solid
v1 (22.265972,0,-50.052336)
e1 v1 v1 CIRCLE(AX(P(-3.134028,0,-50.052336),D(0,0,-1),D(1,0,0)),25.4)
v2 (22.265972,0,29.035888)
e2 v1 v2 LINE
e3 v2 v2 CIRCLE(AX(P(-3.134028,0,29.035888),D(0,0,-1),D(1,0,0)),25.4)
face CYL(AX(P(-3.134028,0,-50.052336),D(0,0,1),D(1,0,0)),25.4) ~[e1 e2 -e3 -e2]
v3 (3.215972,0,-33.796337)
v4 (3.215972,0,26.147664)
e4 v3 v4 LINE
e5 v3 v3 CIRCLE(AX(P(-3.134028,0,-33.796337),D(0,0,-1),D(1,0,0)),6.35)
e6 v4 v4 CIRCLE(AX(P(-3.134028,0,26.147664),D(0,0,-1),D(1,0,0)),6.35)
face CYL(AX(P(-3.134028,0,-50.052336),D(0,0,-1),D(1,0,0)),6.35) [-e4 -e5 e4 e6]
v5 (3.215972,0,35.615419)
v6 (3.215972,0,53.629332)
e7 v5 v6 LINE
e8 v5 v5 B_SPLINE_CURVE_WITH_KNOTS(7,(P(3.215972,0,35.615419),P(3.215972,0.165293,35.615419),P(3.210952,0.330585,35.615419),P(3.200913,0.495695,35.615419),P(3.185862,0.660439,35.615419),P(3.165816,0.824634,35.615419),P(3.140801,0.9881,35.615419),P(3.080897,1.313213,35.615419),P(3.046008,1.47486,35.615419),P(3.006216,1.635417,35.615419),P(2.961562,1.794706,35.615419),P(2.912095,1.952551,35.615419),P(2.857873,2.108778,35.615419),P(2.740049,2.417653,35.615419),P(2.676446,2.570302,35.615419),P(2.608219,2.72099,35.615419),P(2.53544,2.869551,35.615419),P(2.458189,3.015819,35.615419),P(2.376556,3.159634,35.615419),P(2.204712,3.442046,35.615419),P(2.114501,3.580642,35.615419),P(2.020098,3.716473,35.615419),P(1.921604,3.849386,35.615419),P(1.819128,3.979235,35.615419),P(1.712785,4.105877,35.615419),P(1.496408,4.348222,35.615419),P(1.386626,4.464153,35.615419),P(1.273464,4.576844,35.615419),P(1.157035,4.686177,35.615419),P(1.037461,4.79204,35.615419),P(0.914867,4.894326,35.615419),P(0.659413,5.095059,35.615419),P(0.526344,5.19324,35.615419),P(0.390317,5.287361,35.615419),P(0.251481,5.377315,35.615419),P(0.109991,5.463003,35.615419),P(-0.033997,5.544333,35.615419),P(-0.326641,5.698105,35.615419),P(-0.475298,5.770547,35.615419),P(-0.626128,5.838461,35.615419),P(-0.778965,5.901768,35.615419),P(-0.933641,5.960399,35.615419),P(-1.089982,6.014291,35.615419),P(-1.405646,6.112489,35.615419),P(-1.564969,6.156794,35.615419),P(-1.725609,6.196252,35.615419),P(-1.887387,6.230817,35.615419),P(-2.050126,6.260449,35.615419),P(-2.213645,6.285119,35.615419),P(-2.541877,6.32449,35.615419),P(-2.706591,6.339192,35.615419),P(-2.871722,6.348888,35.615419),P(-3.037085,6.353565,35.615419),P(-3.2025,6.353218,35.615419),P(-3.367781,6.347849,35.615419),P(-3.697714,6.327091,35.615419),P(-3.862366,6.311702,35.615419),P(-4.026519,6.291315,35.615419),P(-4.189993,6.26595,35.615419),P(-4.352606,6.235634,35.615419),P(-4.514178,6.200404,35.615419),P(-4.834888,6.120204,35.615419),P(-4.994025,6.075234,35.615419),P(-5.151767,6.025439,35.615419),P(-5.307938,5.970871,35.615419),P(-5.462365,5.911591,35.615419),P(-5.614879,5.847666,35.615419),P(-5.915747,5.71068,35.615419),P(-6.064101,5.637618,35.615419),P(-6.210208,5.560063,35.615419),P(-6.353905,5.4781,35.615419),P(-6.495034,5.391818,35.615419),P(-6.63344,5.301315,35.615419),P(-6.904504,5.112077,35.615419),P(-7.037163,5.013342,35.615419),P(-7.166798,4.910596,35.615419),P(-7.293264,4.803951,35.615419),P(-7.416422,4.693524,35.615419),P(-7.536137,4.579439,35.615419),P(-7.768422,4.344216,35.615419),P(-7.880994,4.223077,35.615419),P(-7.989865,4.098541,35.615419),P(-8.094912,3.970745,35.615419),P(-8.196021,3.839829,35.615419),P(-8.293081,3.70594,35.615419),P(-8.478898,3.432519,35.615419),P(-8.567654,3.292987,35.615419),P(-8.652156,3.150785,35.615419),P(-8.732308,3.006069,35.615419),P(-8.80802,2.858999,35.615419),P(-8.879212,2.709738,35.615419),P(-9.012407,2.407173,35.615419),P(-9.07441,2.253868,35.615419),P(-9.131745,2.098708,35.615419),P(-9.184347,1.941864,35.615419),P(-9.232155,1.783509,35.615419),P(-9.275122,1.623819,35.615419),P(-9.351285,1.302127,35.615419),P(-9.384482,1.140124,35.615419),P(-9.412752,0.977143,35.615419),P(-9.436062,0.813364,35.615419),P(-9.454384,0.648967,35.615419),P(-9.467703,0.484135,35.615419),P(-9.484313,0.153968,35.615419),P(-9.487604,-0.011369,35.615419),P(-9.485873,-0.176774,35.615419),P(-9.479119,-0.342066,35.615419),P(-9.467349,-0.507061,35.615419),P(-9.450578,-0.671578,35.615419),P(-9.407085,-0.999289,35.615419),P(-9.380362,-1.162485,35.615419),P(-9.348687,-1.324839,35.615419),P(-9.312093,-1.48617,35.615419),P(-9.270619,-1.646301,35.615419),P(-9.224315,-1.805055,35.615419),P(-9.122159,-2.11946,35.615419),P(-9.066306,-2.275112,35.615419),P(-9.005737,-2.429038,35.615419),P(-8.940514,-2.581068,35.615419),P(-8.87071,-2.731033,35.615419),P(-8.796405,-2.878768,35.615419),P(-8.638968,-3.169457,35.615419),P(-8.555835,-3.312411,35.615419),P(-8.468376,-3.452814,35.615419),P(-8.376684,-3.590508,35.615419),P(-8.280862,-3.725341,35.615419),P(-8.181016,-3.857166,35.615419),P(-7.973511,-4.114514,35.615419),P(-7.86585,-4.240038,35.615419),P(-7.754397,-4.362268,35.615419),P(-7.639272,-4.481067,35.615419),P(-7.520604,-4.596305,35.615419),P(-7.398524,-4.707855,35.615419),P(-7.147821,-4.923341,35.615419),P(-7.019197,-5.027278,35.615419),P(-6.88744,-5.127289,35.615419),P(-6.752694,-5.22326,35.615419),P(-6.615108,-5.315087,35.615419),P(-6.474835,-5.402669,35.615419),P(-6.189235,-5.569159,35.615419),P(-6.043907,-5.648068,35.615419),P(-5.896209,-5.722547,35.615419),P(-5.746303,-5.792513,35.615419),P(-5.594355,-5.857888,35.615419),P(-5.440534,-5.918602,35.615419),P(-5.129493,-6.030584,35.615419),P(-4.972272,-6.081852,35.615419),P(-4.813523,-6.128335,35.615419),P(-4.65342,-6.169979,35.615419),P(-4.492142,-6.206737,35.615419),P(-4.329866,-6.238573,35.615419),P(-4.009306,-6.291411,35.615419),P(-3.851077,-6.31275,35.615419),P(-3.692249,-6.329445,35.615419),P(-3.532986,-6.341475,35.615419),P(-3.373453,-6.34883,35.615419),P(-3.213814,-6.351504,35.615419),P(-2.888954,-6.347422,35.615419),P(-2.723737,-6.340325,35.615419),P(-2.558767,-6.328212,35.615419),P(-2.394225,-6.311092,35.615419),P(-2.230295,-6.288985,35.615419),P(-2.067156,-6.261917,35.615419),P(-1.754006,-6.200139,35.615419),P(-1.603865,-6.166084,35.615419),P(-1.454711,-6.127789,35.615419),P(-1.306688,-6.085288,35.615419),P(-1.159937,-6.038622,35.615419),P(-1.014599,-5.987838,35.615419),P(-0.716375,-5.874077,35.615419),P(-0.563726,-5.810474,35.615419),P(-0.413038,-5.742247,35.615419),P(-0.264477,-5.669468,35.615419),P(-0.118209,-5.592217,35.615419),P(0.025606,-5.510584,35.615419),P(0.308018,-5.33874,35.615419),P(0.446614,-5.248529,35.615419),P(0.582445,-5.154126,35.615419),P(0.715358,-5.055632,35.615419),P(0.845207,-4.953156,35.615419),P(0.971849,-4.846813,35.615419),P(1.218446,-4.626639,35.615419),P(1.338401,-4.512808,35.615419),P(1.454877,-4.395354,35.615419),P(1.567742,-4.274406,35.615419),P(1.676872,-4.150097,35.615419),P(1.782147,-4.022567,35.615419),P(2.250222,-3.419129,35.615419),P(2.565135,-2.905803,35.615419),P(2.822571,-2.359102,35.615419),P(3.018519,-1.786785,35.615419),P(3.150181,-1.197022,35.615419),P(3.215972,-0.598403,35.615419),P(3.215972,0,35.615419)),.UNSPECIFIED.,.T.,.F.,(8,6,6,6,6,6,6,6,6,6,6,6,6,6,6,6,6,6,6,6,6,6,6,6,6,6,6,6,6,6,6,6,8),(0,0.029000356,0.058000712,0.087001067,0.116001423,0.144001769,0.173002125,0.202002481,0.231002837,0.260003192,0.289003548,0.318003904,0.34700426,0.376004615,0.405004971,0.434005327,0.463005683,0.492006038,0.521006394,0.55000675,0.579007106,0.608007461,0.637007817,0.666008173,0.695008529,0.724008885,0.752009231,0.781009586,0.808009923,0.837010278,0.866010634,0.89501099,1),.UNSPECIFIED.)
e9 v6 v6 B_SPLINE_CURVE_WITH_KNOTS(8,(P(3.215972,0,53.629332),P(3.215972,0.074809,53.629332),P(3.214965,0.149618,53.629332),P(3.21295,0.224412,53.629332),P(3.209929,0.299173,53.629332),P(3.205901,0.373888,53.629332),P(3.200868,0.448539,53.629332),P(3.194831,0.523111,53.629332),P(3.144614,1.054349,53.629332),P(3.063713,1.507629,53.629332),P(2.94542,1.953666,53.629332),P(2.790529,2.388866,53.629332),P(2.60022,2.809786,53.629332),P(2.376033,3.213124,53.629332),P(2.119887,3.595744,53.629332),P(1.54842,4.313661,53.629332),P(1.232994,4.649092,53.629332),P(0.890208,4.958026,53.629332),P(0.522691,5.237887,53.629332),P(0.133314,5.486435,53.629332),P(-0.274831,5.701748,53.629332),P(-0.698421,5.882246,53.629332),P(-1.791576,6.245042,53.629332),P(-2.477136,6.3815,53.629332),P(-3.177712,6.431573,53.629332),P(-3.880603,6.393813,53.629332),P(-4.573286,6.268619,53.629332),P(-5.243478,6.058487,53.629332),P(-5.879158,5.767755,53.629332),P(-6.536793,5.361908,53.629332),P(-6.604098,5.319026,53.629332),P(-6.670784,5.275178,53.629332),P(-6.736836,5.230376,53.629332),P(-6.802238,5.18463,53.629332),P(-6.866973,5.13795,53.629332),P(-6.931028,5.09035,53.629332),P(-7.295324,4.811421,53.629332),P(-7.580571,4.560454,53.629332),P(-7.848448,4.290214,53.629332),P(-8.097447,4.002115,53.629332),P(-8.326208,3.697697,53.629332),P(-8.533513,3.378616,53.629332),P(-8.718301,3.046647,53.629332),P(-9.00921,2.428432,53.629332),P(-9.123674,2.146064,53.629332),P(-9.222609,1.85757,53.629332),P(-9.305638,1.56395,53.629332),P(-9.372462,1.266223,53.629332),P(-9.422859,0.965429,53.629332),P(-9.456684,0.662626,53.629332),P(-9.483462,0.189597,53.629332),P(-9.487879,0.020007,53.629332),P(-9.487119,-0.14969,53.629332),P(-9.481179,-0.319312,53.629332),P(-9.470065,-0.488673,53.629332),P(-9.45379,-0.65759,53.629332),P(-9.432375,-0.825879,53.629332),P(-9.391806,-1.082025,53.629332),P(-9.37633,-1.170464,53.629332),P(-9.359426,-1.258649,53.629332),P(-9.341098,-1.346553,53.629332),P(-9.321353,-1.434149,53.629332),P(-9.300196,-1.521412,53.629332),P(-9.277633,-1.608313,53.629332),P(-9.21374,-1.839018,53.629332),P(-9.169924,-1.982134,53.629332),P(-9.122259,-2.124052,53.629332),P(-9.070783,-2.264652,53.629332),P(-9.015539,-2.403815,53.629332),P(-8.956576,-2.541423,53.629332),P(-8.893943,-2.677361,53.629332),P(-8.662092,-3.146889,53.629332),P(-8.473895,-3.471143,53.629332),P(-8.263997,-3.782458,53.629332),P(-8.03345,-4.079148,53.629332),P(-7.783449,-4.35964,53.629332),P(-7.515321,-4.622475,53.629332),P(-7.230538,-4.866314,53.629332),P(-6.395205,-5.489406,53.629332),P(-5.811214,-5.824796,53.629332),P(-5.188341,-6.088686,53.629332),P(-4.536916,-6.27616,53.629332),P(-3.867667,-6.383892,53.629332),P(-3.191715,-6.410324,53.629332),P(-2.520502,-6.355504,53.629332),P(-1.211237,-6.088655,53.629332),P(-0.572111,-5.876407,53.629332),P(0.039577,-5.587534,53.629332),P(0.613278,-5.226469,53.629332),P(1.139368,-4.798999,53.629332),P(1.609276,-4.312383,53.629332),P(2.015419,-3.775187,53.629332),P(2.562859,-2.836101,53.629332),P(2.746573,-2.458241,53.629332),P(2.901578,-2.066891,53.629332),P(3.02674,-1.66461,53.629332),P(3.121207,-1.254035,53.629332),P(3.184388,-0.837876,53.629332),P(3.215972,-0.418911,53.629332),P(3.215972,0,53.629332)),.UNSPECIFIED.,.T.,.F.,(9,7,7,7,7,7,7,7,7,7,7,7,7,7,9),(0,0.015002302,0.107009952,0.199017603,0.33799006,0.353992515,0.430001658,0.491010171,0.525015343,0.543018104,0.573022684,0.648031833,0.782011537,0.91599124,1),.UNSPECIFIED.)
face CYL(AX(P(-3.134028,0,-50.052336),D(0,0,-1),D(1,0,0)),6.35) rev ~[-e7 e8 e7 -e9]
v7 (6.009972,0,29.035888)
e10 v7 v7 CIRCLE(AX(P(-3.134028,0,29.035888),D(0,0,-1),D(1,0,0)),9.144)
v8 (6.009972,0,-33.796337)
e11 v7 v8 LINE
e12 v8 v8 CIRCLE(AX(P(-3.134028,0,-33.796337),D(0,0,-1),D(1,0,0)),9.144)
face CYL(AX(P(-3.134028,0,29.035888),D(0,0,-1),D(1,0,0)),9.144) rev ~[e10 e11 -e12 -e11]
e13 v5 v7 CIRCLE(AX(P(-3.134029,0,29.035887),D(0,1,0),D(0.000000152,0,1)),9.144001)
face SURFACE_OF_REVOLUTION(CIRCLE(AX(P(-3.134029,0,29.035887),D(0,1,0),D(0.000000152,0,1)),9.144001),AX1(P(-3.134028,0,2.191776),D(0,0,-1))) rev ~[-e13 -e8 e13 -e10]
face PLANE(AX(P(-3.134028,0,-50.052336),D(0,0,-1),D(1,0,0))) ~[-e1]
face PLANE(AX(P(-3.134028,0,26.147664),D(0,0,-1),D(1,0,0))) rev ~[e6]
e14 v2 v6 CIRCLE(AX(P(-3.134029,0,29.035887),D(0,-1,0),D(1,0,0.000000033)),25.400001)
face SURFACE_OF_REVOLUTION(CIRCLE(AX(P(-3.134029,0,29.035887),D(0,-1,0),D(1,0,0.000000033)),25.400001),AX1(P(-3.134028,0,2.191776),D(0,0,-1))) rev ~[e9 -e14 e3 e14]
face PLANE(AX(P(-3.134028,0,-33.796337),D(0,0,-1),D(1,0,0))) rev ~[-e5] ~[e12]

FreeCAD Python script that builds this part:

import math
import FreeCAD as App
import Part
import Sketcher
from FreeCAD import Vector
Q = App.Units.Quantity

doc = App.newDocument("Part")
body = doc.addObject("PartDesign::Body", "Body")

# Sketch on XZ plane
sketch1 = body.newObject("Sketcher::SketchObject", "Sketch")
sketch1.AttachmentSupport = (doc.getObject("XZ_Plane"), [""])
sketch1.MapMode = "FlatFace"
sketch1.addGeometry(Part.LineSegment(Vector(-3.134028, -33.796337, 0), Vector(-3.134028, -50.052336, 0)), False)
sketch1.addGeometry(Part.LineSegment(Vector(-3.134028, -50.052336, 0), Vector(22.265972, -50.052336, 0)), False)
sketch1.addGeometry(Part.LineSegment(Vector(22.265972, -50.052336, 0), Vector(22.265972, 29.035888, 0)), False)
sketch1.addGeometry(Part.ArcOfCircle(Part.Circle(Vector(-3.134029, 29.035887, 0), Vector(0, 0, 1), 25.400001), math.radians(0.000002), math.radians(89.999998)), False)
sketch1.addGeometry(Part.LineSegment(Vector(-3.134028, 54.435888, 0), Vector(-3.134028, 38.179888, 0)), False)
sketch1.addGeometry(Part.ArcOfCircle(Part.Circle(Vector(-3.134029, 29.035887, 0), Vector(0, 0, 1), 9.144001), math.radians(0.000009), math.radians(89.999991)), False)
sketch1.addGeometry(Part.LineSegment(Vector(6.009972, 29.035888, 0), Vector(6.009972, -33.796337, 0)), False)
sketch1.addGeometry(Part.LineSegment(Vector(6.009972, -33.796337, 0), Vector(-3.134028, -33.796337, 0)), False)
sketch1.addGeometry(Part.LineSegment(Vector(-3.134028, 54.435888, 0), Vector(-3.134028, -50.052336, 0)), True)  # axis
sketch1.addConstraint(Sketcher.Constraint("Coincident", 0, 2, 1, 1))
sketch1.addConstraint(Sketcher.Constraint("Coincident", 1, 2, 2, 1))
sketch1.addConstraint(Sketcher.Constraint("Tangent", 2, 2, 3, 1))
sketch1.addConstraint(Sketcher.Constraint("Coincident", 3, 2, 4, 1))
sketch1.addConstraint(Sketcher.Constraint("Coincident", 4, 2, 5, 2))
sketch1.addConstraint(Sketcher.Constraint("Tangent", 5, 1, 6, 1))
sketch1.addConstraint(Sketcher.Constraint("Coincident", 6, 2, 7, 1))
sketch1.addConstraint(Sketcher.Constraint("Coincident", 7, 2, 0, 1))
sketch1.addConstraint(Sketcher.Constraint("Vertical", 0))
sketch1.addConstraint(Sketcher.Constraint("Horizontal", 1))
sketch1.addConstraint(Sketcher.Constraint("Vertical", 2))
sketch1.addConstraint(Sketcher.Constraint("Vertical", 4))
sketch1.addConstraint(Sketcher.Constraint("Vertical", 6))
sketch1.addConstraint(Sketcher.Constraint("Horizontal", 7))
sketch1.addConstraint(Sketcher.Constraint("Vertical", 8))
sketch1.addConstraint(Sketcher.Constraint("Coincident", 5, 3, 3, 3))
sketch1.addConstraint(Sketcher.Constraint("Coincident", 8, 1, 3, 2))
sketch1.addConstraint(Sketcher.Constraint("Coincident", 8, 2, 0, 2))
sketch1.addConstraint(Sketcher.Constraint("Vertical", 5, 3, 0, 2))
sketch1.addConstraint(Sketcher.Constraint("Equal", 0, 4))
sketch1.addConstraint(Sketcher.Constraint("Radius", 3, Q("1 in")))
sketch1.addConstraint(Sketcher.Constraint("Radius", 5, Q("0.3600001 in")))
sketch1.addConstraint(Sketcher.Constraint("DistanceY", 2, 1, 2, 2, Q("79.088224 mm")))
sketch1.addConstraint(Sketcher.Constraint("DistanceX", 3, 3, -1, 1, Q("3.134029 mm")))
sketch1.addConstraint(Sketcher.Constraint("DistanceY", -1, 1, 2, 2, Q("29.035888 mm")))
revolution = body.newObject("PartDesign::Revolution", "Revolution")
revolution.Profile = sketch1
revolution.ReferenceAxis = (sketch1, ["Axis0"])
revolution.Angle = 360

# Sketch on XY plane
sketch2 = body.newObject("Sketcher::SketchObject", "Sketch001")
sketch2.AttachmentSupport = (doc.getObject("XY_Plane"), [""])
sketch2.MapMode = "FlatFace"
sketch2.AttachmentOffset = App.Placement(Vector(0, 0, -50.052336), App.Rotation())
sketch2.addGeometry(Part.Circle(Vector(-3.134028, 0, 0), Vector(0, 0, 1), 6.35), False)
sketch2.addConstraint(Sketcher.Constraint("PointOnObject", 0, 3, -1))
sketch2.addConstraint(Sketcher.Constraint("Diameter", 0, Q("0.5 in")))
sketch2.addConstraint(Sketcher.Constraint("DistanceX", 0, 3, -1, 1, Q("3.134028 mm")))
pocket1 = body.newObject("PartDesign::Pocket", "Pocket")
pocket1.Profile = sketch2
pocket1.Type = "ThroughAll"
pocket1.Reversed = True

# Sketch on XY plane
sketch3 = body.newObject("Sketcher::SketchObject", "Sketch002")
sketch3.AttachmentSupport = (doc.getObject("XY_Plane"), [""])
sketch3.MapMode = "FlatFace"
sketch3.AttachmentOffset = App.Placement(Vector(0, 0, -50.052336), App.Rotation())
sketch3.addGeometry(Part.Circle(Vector(-3.134028, 0, 0), Vector(0, 0, 1), 6.35), False)
sketch3.addConstraint(Sketcher.Constraint("PointOnObject", 0, 3, -1))
sketch3.addConstraint(Sketcher.Constraint("Diameter", 0, Q("0.5 in")))
sketch3.addConstraint(Sketcher.Constraint("DistanceX", 0, 3, -1, 1, Q("3.134028 mm")))
pad1 = body.newObject("PartDesign::Pad", "Pad")
pad1.Profile = sketch3
pad1.Length = Q("3 in")

doc.recompute()
